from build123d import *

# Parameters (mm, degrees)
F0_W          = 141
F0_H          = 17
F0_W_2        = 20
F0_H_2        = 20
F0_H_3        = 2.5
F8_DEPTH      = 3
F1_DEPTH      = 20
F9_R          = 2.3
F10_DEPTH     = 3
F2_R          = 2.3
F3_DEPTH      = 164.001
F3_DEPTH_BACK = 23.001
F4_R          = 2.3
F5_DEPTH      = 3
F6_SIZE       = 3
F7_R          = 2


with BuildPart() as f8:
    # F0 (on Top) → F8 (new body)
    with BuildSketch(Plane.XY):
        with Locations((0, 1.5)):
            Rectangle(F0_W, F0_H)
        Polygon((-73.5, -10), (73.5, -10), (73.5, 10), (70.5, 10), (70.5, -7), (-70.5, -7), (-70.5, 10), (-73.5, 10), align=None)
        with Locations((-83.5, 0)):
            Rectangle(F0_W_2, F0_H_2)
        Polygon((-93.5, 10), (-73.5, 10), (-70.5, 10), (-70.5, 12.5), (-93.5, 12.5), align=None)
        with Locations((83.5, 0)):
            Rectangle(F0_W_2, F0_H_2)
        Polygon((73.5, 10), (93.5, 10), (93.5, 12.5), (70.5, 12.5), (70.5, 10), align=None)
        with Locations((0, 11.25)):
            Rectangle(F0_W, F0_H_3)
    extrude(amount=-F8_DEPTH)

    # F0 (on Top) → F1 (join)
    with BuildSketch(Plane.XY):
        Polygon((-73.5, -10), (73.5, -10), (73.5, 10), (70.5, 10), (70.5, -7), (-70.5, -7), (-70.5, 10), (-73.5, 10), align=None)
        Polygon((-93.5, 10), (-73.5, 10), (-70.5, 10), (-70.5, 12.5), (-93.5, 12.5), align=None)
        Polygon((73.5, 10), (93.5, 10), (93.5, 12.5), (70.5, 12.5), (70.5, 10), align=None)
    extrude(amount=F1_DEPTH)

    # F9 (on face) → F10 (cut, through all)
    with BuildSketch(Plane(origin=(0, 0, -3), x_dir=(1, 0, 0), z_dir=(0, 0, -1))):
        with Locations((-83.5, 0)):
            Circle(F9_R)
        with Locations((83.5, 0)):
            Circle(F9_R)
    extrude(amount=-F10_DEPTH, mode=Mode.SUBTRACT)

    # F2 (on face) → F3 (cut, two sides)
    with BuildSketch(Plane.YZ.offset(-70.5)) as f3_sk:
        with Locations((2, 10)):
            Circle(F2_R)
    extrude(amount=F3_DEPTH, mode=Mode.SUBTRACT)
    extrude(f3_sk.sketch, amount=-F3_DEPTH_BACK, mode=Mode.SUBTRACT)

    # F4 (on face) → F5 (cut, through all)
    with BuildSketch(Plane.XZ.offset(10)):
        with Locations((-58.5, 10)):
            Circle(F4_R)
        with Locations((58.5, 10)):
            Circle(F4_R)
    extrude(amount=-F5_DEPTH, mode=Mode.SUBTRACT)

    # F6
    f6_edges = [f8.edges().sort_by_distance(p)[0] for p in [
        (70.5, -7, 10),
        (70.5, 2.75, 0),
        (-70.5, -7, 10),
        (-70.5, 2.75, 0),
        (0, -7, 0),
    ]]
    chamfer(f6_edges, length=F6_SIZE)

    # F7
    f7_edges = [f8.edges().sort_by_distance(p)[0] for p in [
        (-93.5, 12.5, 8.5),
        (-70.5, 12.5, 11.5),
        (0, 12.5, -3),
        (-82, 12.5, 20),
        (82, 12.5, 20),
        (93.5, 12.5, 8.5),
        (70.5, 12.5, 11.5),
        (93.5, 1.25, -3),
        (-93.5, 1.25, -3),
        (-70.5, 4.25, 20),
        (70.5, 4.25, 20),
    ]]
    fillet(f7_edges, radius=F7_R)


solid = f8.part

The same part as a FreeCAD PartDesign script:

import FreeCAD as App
import Part
import Sketcher

V = App.Vector
Q = App.Units.Quantity


def edges_at(feature, points):
    """Names of the edges that pass closest to the given points."""
    edges = feature.Shape.Edges
    near = lambda p: min(range(len(edges)), key=lambda i: edges[i].distToShape(Part.Vertex(*p))[0])
    return sorted({f"Edge{near(p) + 1}" for p in points})


def add_polygon(sketch, points):
    """Adds a closed chain of lines whose ends are joined by coincident constraints."""
    first, n = sketch.GeometryCount, len(points)
    for a, b in zip(points, points[1:] + points[:1]):
        sketch.addGeometry(Part.LineSegment(App.Vector(*a, 0), App.Vector(*b, 0)), False)
    for i in range(n):
        sketch.addConstraint(Sketcher.Constraint("Coincident", first + i, 2, first + (i + 1) % n, 1))

doc = App.newDocument("Part")
body = doc.addObject("PartDesign::Body", "Body")

sketch1 = body.newObject("Sketcher::SketchObject", "Sketch")
sketch1.AttachmentSupport = (doc.getObject("XY_Plane"), [""])
sketch1.MapMode = "FlatFace"
add_polygon(sketch1, [(-93.5, 12.5), (-93.5, -10), (93.5, -10), (93.5, 12.5)])
sketch1.addConstraint([
    Sketcher.Constraint("Vertical", 0),
    Sketcher.Constraint("Horizontal", 1),
    Sketcher.Constraint("Vertical", 2),
    Sketcher.Constraint("Horizontal", 3),
    Sketcher.Constraint("DistanceX", 1, 1, 1, 2, Q("187 mm")),
    Sketcher.Constraint("DistanceY", 0, 2, 0, 1, Q("22.5 mm")),
    Sketcher.Constraint("DistanceY", 0, 2, -1, 1, Q("10 mm")),
    Sketcher.Constraint("DistanceX", 0, 2, -1, 1, Q("93.5 mm")),
])
pad1 = body.newObject("PartDesign::Pad", "Pad")
pad1.Profile = sketch1
pad1.Length = 3
pad1.Reversed = True

sketch2 = body.newObject("Sketcher::SketchObject", "Sketch001")
sketch2.AttachmentSupport = (doc.getObject("XY_Plane"), [""])
sketch2.MapMode = "FlatFace"
add_polygon(sketch2, [(-73.5, -10), (73.5, -10), (73.5, 10), (93.5, 10), (93.5, 12.5), (70.5, 12.5), (70.5, -7), (-70.5, -7), (-70.5, 12.5), (-93.5, 12.5), (-93.5, 10), (-73.5, 10)])
sketch2.addConstraint([
    Sketcher.Constraint("Horizontal", 0),
    Sketcher.Constraint("Vertical", 1),
    Sketcher.Constraint("Horizontal", 2),
    Sketcher.Constraint("Vertical", 3),
    Sketcher.Constraint("Horizontal", 4),
    Sketcher.Constraint("Vertical", 5),
    Sketcher.Constraint("Horizontal", 6),
    Sketcher.Constraint("Vertical", 7),
    Sketcher.Constraint("Horizontal", 8),
    Sketcher.Constraint("Vertical", 9),
    Sketcher.Constraint("Horizontal", 10),
    Sketcher.Constraint("Vertical", 11),
    Sketcher.Constraint("Symmetric", 0, 2, 10, 2, -1, 1),
    Sketcher.Constraint("Symmetric", 4, 2, 7, 2, -2),
    Sketcher.Constraint("Symmetric", 2, 2, 9, 2, -2),
    Sketcher.Constraint("Equal", 10, 1),
    Sketcher.Constraint("DistanceX", 0, 1, 0, 2, Q("147 mm")),
    Sketcher.Constraint("DistanceX", 2, 1, 2, 2, Q("20 mm")),
    Sketcher.Constraint("DistanceX", 4, 2, 4, 1, Q("23 mm")),
    Sketcher.Constraint("DistanceY", 3, 1, 3, 2, Q("2.5 mm")),
    Sketcher.Constraint("DistanceY", 5, 2, 5, 1, Q("19.5 mm")),
])
pad2 = body.newObject("PartDesign::Pad", "Pad001")
pad2.Profile = sketch2
pad2.Length = 20

sketch3 = body.newObject("Sketcher::SketchObject", "Sketch002")
sketch3.AttachmentSupport = (doc.getObject("XY_Plane"), [""])
sketch3.MapMode = "FlatFace"
sketch3.AttachmentOffset = App.Placement(V(0, 0, -3), App.Rotation())
sketch3.addGeometry([
    Part.Circle(V(-83.5, 0, 0), V(0, 0, 1), 2.3),
    Part.Circle(V(83.5, 0, 0), V(0, 0, 1), 2.3),
], False)
sketch3.addConstraint([
    Sketcher.Constraint("Equal", 0, 1),
    Sketcher.Constraint("Symmetric", 0, 3, 1, 3, -1, 1),
    Sketcher.Constraint("PointOnObject", 0, 3, -1),
    Sketcher.Constraint("Diameter", 0, Q("4.6 mm")),
    Sketcher.Constraint("DistanceX", 0, 3, 1, 3, Q("167 mm")),
])
pocket1 = body.newObject("PartDesign::Pocket", "Pocket")
pocket1.Profile = sketch3
pocket1.Type = "ThroughAll"
pocket1.Reversed = True

sketch4 = body.newObject("Sketcher::SketchObject", "Sketch003")
sketch4.AttachmentSupport = (doc.getObject("YZ_Plane"), [""])
sketch4.MapMode = "FlatFace"
sketch4.AttachmentOffset = App.Placement(V(0, 0, -70.5), App.Rotation())
sketch4.addGeometry(Part.Circle(V(2, 10, 0), V(0, 0, 1), 2.3), False)
sketch4.addConstraint([
    Sketcher.Constraint("Diameter", 0, Q("4.6 mm")),
    Sketcher.Constraint("DistanceX", -1, 1, 0, 3, Q("2 mm")),
    Sketcher.Constraint("DistanceY", -1, 1, 0, 3, Q("10 mm")),
])
pocket2 = body.newObject("PartDesign::Pocket", "Pocket001")
pocket2.Profile = sketch4
pocket2.Type = "ThroughAll"
pocket2.Midplane = True

sketch5 = body.newObject("Sketcher::SketchObject", "Sketch004")
sketch5.AttachmentSupport = (doc.getObject("XZ_Plane"), [""])
sketch5.MapMode = "FlatFace"
sketch5.AttachmentOffset = App.Placement(V(0, 0, 10), App.Rotation())
sketch5.addGeometry([
    Part.Circle(V(-58.5, 10, 0), V(0, 0, 1), 2.3),
    Part.Circle(V(58.5, 10, 0), V(0, 0, 1), 2.3),
], False)
sketch5.addConstraint([
    Sketcher.Constraint("Equal", 0, 1),
    Sketcher.Constraint("Symmetric", 0, 3, 1, 3, -2),
    Sketcher.Constraint("Diameter", 0, Q("4.6 mm")),
    Sketcher.Constraint("DistanceY", -1, 1, 0, 3, Q("10 mm")),
    Sketcher.Constraint("DistanceX", 0, 3, 1, 3, Q("117 mm")),
])
pocket3 = body.newObject("PartDesign::Pocket", "Pocket002")
pocket3.Profile = sketch5
pocket3.Type = "ThroughAll"
doc.recompute()

chamfer = body.newObject("PartDesign::Chamfer", "Chamfer")
chamfer.Base = (pocket3, edges_at(pocket3, [
    (70.5, -7, 10),
    (70.5, 2.75, 0),
    (-70.5, -7, 10),
    (-70.5, 2.75, 0),
    (0, -7, 0),
]))
chamfer.Size = 3
doc.recompute()

fillet = body.newObject("PartDesign::Fillet", "Fillet")
fillet.Base = (chamfer, edges_at(chamfer, [
    (-93.5, 12.5, 8.5),
    (-70.5, 12.5, 11.5),
    (0, 12.5, -3),
    (-82, 12.5, 20),
    (82, 12.5, 20),
    (93.5, 12.5, 8.5),
    (70.5, 12.5, 11.5),
    (93.5, 1.25, -3),
    (-93.5, 1.25, -3),
    (-70.5, 4.25, 20),
    (70.5, 4.25, 20),
]))
fillet.Radius = 2

doc.recompute()
